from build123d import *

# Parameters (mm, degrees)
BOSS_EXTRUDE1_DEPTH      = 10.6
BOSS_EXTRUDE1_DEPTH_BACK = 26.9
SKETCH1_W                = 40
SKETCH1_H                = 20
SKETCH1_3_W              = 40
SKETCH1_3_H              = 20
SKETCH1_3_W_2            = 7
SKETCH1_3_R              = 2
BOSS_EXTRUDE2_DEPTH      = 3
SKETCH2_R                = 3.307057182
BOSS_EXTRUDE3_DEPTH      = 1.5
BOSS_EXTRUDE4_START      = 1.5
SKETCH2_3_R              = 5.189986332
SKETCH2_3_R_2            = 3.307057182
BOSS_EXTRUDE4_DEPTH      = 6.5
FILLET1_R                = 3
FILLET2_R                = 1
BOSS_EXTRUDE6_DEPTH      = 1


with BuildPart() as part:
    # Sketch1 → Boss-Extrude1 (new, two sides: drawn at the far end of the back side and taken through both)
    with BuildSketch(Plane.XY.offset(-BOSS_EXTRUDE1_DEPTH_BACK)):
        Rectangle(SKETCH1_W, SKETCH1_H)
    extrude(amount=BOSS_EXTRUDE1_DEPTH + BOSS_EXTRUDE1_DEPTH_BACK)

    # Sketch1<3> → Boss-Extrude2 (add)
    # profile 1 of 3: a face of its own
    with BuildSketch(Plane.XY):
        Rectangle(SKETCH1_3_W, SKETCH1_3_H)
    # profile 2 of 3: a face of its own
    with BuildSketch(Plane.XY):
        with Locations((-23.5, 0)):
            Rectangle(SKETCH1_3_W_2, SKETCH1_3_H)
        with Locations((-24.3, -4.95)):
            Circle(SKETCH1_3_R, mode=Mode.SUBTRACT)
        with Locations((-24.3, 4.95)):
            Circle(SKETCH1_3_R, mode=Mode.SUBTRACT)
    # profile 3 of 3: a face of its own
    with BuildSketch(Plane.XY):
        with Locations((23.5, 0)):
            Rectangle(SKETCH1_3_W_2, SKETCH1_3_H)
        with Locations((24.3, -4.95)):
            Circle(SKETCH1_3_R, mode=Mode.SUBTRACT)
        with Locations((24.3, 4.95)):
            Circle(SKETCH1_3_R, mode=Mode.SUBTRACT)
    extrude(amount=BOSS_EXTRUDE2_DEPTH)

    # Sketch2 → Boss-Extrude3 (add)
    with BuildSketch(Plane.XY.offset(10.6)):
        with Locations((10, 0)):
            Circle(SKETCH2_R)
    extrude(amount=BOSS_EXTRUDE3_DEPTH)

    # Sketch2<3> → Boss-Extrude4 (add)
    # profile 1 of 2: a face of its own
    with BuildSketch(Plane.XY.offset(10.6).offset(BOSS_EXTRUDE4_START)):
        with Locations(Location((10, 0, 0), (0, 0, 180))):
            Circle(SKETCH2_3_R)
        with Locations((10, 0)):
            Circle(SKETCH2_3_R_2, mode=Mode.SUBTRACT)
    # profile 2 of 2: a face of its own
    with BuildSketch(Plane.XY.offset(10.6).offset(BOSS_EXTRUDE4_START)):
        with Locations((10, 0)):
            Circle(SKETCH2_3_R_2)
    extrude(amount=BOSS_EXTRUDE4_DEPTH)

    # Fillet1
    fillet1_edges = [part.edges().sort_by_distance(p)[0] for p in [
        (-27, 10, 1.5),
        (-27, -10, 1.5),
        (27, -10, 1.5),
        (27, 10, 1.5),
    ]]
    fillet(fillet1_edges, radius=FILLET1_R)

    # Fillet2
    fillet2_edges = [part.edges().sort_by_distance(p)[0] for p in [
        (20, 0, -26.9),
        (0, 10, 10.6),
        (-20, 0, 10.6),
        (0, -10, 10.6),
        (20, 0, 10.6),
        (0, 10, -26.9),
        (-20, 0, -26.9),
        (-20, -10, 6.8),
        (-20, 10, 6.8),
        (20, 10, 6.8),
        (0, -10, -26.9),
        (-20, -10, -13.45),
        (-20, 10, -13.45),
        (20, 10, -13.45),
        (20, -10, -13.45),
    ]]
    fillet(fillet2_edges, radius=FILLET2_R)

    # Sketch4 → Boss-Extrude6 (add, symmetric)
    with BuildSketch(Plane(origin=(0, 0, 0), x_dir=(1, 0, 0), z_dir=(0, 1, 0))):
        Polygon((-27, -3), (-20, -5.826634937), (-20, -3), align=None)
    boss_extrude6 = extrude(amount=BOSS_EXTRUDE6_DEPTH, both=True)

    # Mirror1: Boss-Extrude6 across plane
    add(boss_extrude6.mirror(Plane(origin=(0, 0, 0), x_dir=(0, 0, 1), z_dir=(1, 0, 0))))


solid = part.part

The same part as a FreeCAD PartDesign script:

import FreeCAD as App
import Part
import Sketcher
Q = App.Units.Quantity


def edges_at(feature, points):
    """Names of the edges that pass closest to the given points."""
    edges = feature.Shape.Edges
    near = lambda p: min(range(len(edges)), key=lambda i: edges[i].distToShape(Part.Vertex(*p))[0])
    return sorted({f"Edge{near(p) + 1}" for p in points})

doc = App.newDocument("Part")
body = doc.addObject("PartDesign::Body", "Body")

sketch1 = doc.addObject("Sketcher::SketchObject", "Sketch")
body.addObject(sketch1)
sketch1.AttachmentSupport = (doc.XY_Plane, [""])
sketch1.MapMode = "FlatFace"
sketch1.addGeometry(Part.LineSegment(App.Vector(-20, 10, 0), App.Vector(-20, -10, 0)), False)
sketch1.addGeometry(Part.LineSegment(App.Vector(-20, -10, 0), App.Vector(20, -10, 0)), False)
sketch1.addGeometry(Part.LineSegment(App.Vector(20, -10, 0), App.Vector(20, 10, 0)), False)
sketch1.addGeometry(Part.LineSegment(App.Vector(20, 10, 0), App.Vector(-20, 10, 0)), False)
sketch1.addConstraint(Sketcher.Constraint("Coincident", 0, 2, 1, 1))
sketch1.addConstraint(Sketcher.Constraint("Coincident", 1, 2, 2, 1))
sketch1.addConstraint(Sketcher.Constraint("Coincident", 2, 2, 3, 1))
sketch1.addConstraint(Sketcher.Constraint("Coincident", 3, 2, 0, 1))
sketch1.addConstraint(Sketcher.Constraint("Vertical", 0))
sketch1.addConstraint(Sketcher.Constraint("Horizontal", 1))
sketch1.addConstraint(Sketcher.Constraint("Vertical", 2))
sketch1.addConstraint(Sketcher.Constraint("Horizontal", 3))
sketch1.addConstraint(Sketcher.Constraint("Symmetric", 0, 2, 2, 2, -1, 1))
sketch1.addConstraint(Sketcher.Constraint("DistanceX", 1, 1, 1, 2, Q("40 mm")))
sketch1.addConstraint(Sketcher.Constraint("DistanceY", 0, 2, 0, 1, Q("20 mm")))
pad1 = doc.addObject("PartDesign::Pad", "Pad")
body.addObject(pad1)
pad1.Profile = sketch1
pad1.Type = "TwoLengths"
pad1.Length = 10.6
pad1.Length2 = 26.9

sketch2 = doc.addObject("Sketcher::SketchObject", "Sketch001")
body.addObject(sketch2)
sketch2.AttachmentSupport = (doc.XY_Plane, [""])
sketch2.MapMode = "FlatFace"
sketch2.addGeometry(Part.LineSegment(App.Vector(27, -10, 0), App.Vector(27, 10, 0)), False)
sketch2.addGeometry(Part.LineSegment(App.Vector(27, 10, 0), App.Vector(-27, 10, 0)), False)
sketch2.addGeometry(Part.LineSegment(App.Vector(-27, 10, 0), App.Vector(-27, -10, 0)), False)
sketch2.addGeometry(Part.LineSegment(App.Vector(-27, -10, 0), App.Vector(27, -10, 0)), False)
sketch2.addGeometry(Part.Circle(App.Vector(-24.3, 4.95, 0), App.Vector(0, 0, 1), 2), False)
sketch2.addGeometry(Part.Circle(App.Vector(-24.3, -4.95, 0), App.Vector(0, 0, 1), 2), False)
sketch2.addGeometry(Part.Circle(App.Vector(24.3, 4.95, 0), App.Vector(0, 0, 1), 2), False)
sketch2.addGeometry(Part.Circle(App.Vector(24.3, -4.95, 0), App.Vector(0, 0, 1), 2), False)
sketch2.addConstraint(Sketcher.Constraint("Coincident", 0, 2, 1, 1))
sketch2.addConstraint(Sketcher.Constraint("Coincident", 1, 2, 2, 1))
sketch2.addConstraint(Sketcher.Constraint("Coincident", 2, 2, 3, 1))
sketch2.addConstraint(Sketcher.Constraint("Coincident", 3, 2, 0, 1))
sketch2.addConstraint(Sketcher.Constraint("Vertical", 0))
sketch2.addConstraint(Sketcher.Constraint("Horizontal", 1))
sketch2.addConstraint(Sketcher.Constraint("Vertical", 2))
sketch2.addConstraint(Sketcher.Constraint("Horizontal", 3))
sketch2.addConstraint(Sketcher.Constraint("Equal", 4, 5))
sketch2.addConstraint(Sketcher.Constraint("Equal", 5, 6))
sketch2.addConstraint(Sketcher.Constraint("Equal", 6, 7))
sketch2.addConstraint(Sketcher.Constraint("Symmetric", 5, 3, 6, 3, -1, 1))
sketch2.addConstraint(Sketcher.Constraint("Symmetric", 4, 3, 7, 3, -1, 1))
sketch2.addConstraint(Sketcher.Constraint("Symmetric", 0, 2, 2, 2, -1, 1))
sketch2.addConstraint(Sketcher.Constraint("Symmetric", 4, 3, 6, 3, -2))
sketch2.addConstraint(Sketcher.Constraint("Diameter", 4, Q("4 mm")))
sketch2.addConstraint(Sketcher.Constraint("DistanceX", 1, 2, 1, 1, Q("54 mm")))
sketch2.addConstraint(Sketcher.Constraint("DistanceY", 0, 1, 0, 2, Q("20 mm")))
sketch2.addConstraint(Sketcher.Constraint("DistanceX", 4, 3, -1, 1, Q("24.3 mm")))
sketch2.addConstraint(Sketcher.Constraint("DistanceY", 5, 3, 4, 3, Q("9.9 mm")))
pad2 = doc.addObject("PartDesign::Pad", "Pad001")
body.addObject(pad2)
pad2.Profile = sketch2
pad2.Length = 3

sketch3 = doc.addObject("Sketcher::SketchObject", "Sketch002")
body.addObject(sketch3)
sketch3.AttachmentSupport = (doc.XY_Plane, [""])
sketch3.MapMode = "FlatFace"
sketch3.AttachmentOffset = App.Placement(App.Vector(0, 0, 10.6), App.Rotation())
sketch3.addGeometry(Part.Circle(App.Vector(10, 0, 0), App.Vector(0, 0, 1), 3.307057), False)
sketch3.addConstraint(Sketcher.Constraint("PointOnObject", 0, 3, -1))
sketch3.addConstraint(Sketcher.Constraint("DistanceX", -1, 1, 0, 3, Q("10 mm")))
sketch3.addConstraint(Sketcher.Constraint("Diameter", 0, Q("6.614114 mm")))
pad3 = doc.addObject("PartDesign::Pad", "Pad002")
body.addObject(pad3)
pad3.Profile = sketch3
pad3.Length = 1.5

sketch4 = doc.addObject("Sketcher::SketchObject", "Sketch003")
body.addObject(sketch4)
sketch4.AttachmentSupport = (doc.XY_Plane, [""])
sketch4.MapMode = "FlatFace"
sketch4.AttachmentOffset = App.Placement(App.Vector(0, 0, 12.1), App.Rotation())
sketch4.addGeometry(Part.Circle(App.Vector(10, 0, 0), App.Vector(0, 0, 1), 5.189986), False)
sketch4.addConstraint(Sketcher.Constraint("PointOnObject", 0, 3, -1))
sketch4.addConstraint(Sketcher.Constraint("DistanceX", -1, 1, 0, 3, Q("10 mm")))
sketch4.addConstraint(Sketcher.Constraint("Diameter", 0, Q("10.379973 mm")))
pad4 = doc.addObject("PartDesign::Pad", "Pad003")
body.addObject(pad4)
pad4.Profile = sketch4
pad4.Length = 6.5
doc.recompute()

fillet = doc.addObject("PartDesign::Fillet", "Fillet")
body.addObject(fillet)
fillet.Base = (pad4, edges_at(pad4, [
    (-27, 10, 1.5),
    (-27, -10, 1.5),
    (27, -10, 1.5),
    (27, 10, 1.5),
]))
fillet.Radius = 3
doc.recompute()

fillet2 = doc.addObject("PartDesign::Fillet", "Fillet001")
body.addObject(fillet2)
fillet2.Base = (fillet, edges_at(fillet, [
    (20, 0, -26.9),
    (0, 10, 10.6),
    (-20, 0, 10.6),
    (0, -10, 10.6),
    (20, 0, 10.6),
    (0, 10, -26.9),
    (-20, 0, -26.9),
    (-20, -10, 6.8),
    (-20, 10, 6.8),
    (20, 10, 6.8),
    (0, -10, -26.9),
    (-20, -10, -13.45),
    (-20, 10, -13.45),
    (20, 10, -13.45),
    (20, -10, -13.45),
]))
fillet2.Radius = 1

sketch5 = doc.addObject("Sketcher::SketchObject", "Sketch004")
body.addObject(sketch5)
sketch5.AttachmentSupport = (doc.XZ_Plane, [""])
sketch5.MapMode = "FlatFace"
sketch5.addGeometry(Part.LineSegment(App.Vector(-27, 3, 0), App.Vector(-20, 5.826635, 0)), False)
sketch5.addGeometry(Part.LineSegment(App.Vector(-20, 5.826635, 0), App.Vector(-20, 3, 0)), False)
sketch5.addGeometry(Part.LineSegment(App.Vector(-20, 3, 0), App.Vector(-27, 3, 0)), False)
sketch5.addConstraint(Sketcher.Constraint("Coincident", 0, 2, 1, 1))
sketch5.addConstraint(Sketcher.Constraint("Coincident", 1, 2, 2, 1))
sketch5.addConstraint(Sketcher.Constraint("Coincident", 2, 2, 0, 1))
sketch5.addConstraint(Sketcher.Constraint("Vertical", 1))
sketch5.addConstraint(Sketcher.Constraint("Horizontal", 2))
sketch5.addConstraint(Sketcher.Constraint("DistanceX", 2, 2, 2, 1, Q("7 mm")))
sketch5.addConstraint(Sketcher.Constraint("DistanceX", 0, 2, -1, 1, Q("20 mm")))
sketch5.addConstraint(Sketcher.Constraint("DistanceY", -1, 1, 1, 2, Q("3 mm")))
sketch5.addConstraint(Sketcher.Constraint("DistanceY", 1, 2, 1, 1, Q("2.826635 mm")))
pad5 = doc.addObject("PartDesign::Pad", "Pad004")
body.addObject(pad5)
pad5.Profile = sketch5
pad5.Length = 2
pad5.Midplane = True
doc.recompute()

mirrored = doc.addObject("PartDesign::Mirrored", "Mirrored")
body.addObject(mirrored)
mirrored.Originals = [pad5]
mirrored.MirrorPlane = (doc.YZ_Plane, [""])
body.Tip = mirrored

doc.recompute()
